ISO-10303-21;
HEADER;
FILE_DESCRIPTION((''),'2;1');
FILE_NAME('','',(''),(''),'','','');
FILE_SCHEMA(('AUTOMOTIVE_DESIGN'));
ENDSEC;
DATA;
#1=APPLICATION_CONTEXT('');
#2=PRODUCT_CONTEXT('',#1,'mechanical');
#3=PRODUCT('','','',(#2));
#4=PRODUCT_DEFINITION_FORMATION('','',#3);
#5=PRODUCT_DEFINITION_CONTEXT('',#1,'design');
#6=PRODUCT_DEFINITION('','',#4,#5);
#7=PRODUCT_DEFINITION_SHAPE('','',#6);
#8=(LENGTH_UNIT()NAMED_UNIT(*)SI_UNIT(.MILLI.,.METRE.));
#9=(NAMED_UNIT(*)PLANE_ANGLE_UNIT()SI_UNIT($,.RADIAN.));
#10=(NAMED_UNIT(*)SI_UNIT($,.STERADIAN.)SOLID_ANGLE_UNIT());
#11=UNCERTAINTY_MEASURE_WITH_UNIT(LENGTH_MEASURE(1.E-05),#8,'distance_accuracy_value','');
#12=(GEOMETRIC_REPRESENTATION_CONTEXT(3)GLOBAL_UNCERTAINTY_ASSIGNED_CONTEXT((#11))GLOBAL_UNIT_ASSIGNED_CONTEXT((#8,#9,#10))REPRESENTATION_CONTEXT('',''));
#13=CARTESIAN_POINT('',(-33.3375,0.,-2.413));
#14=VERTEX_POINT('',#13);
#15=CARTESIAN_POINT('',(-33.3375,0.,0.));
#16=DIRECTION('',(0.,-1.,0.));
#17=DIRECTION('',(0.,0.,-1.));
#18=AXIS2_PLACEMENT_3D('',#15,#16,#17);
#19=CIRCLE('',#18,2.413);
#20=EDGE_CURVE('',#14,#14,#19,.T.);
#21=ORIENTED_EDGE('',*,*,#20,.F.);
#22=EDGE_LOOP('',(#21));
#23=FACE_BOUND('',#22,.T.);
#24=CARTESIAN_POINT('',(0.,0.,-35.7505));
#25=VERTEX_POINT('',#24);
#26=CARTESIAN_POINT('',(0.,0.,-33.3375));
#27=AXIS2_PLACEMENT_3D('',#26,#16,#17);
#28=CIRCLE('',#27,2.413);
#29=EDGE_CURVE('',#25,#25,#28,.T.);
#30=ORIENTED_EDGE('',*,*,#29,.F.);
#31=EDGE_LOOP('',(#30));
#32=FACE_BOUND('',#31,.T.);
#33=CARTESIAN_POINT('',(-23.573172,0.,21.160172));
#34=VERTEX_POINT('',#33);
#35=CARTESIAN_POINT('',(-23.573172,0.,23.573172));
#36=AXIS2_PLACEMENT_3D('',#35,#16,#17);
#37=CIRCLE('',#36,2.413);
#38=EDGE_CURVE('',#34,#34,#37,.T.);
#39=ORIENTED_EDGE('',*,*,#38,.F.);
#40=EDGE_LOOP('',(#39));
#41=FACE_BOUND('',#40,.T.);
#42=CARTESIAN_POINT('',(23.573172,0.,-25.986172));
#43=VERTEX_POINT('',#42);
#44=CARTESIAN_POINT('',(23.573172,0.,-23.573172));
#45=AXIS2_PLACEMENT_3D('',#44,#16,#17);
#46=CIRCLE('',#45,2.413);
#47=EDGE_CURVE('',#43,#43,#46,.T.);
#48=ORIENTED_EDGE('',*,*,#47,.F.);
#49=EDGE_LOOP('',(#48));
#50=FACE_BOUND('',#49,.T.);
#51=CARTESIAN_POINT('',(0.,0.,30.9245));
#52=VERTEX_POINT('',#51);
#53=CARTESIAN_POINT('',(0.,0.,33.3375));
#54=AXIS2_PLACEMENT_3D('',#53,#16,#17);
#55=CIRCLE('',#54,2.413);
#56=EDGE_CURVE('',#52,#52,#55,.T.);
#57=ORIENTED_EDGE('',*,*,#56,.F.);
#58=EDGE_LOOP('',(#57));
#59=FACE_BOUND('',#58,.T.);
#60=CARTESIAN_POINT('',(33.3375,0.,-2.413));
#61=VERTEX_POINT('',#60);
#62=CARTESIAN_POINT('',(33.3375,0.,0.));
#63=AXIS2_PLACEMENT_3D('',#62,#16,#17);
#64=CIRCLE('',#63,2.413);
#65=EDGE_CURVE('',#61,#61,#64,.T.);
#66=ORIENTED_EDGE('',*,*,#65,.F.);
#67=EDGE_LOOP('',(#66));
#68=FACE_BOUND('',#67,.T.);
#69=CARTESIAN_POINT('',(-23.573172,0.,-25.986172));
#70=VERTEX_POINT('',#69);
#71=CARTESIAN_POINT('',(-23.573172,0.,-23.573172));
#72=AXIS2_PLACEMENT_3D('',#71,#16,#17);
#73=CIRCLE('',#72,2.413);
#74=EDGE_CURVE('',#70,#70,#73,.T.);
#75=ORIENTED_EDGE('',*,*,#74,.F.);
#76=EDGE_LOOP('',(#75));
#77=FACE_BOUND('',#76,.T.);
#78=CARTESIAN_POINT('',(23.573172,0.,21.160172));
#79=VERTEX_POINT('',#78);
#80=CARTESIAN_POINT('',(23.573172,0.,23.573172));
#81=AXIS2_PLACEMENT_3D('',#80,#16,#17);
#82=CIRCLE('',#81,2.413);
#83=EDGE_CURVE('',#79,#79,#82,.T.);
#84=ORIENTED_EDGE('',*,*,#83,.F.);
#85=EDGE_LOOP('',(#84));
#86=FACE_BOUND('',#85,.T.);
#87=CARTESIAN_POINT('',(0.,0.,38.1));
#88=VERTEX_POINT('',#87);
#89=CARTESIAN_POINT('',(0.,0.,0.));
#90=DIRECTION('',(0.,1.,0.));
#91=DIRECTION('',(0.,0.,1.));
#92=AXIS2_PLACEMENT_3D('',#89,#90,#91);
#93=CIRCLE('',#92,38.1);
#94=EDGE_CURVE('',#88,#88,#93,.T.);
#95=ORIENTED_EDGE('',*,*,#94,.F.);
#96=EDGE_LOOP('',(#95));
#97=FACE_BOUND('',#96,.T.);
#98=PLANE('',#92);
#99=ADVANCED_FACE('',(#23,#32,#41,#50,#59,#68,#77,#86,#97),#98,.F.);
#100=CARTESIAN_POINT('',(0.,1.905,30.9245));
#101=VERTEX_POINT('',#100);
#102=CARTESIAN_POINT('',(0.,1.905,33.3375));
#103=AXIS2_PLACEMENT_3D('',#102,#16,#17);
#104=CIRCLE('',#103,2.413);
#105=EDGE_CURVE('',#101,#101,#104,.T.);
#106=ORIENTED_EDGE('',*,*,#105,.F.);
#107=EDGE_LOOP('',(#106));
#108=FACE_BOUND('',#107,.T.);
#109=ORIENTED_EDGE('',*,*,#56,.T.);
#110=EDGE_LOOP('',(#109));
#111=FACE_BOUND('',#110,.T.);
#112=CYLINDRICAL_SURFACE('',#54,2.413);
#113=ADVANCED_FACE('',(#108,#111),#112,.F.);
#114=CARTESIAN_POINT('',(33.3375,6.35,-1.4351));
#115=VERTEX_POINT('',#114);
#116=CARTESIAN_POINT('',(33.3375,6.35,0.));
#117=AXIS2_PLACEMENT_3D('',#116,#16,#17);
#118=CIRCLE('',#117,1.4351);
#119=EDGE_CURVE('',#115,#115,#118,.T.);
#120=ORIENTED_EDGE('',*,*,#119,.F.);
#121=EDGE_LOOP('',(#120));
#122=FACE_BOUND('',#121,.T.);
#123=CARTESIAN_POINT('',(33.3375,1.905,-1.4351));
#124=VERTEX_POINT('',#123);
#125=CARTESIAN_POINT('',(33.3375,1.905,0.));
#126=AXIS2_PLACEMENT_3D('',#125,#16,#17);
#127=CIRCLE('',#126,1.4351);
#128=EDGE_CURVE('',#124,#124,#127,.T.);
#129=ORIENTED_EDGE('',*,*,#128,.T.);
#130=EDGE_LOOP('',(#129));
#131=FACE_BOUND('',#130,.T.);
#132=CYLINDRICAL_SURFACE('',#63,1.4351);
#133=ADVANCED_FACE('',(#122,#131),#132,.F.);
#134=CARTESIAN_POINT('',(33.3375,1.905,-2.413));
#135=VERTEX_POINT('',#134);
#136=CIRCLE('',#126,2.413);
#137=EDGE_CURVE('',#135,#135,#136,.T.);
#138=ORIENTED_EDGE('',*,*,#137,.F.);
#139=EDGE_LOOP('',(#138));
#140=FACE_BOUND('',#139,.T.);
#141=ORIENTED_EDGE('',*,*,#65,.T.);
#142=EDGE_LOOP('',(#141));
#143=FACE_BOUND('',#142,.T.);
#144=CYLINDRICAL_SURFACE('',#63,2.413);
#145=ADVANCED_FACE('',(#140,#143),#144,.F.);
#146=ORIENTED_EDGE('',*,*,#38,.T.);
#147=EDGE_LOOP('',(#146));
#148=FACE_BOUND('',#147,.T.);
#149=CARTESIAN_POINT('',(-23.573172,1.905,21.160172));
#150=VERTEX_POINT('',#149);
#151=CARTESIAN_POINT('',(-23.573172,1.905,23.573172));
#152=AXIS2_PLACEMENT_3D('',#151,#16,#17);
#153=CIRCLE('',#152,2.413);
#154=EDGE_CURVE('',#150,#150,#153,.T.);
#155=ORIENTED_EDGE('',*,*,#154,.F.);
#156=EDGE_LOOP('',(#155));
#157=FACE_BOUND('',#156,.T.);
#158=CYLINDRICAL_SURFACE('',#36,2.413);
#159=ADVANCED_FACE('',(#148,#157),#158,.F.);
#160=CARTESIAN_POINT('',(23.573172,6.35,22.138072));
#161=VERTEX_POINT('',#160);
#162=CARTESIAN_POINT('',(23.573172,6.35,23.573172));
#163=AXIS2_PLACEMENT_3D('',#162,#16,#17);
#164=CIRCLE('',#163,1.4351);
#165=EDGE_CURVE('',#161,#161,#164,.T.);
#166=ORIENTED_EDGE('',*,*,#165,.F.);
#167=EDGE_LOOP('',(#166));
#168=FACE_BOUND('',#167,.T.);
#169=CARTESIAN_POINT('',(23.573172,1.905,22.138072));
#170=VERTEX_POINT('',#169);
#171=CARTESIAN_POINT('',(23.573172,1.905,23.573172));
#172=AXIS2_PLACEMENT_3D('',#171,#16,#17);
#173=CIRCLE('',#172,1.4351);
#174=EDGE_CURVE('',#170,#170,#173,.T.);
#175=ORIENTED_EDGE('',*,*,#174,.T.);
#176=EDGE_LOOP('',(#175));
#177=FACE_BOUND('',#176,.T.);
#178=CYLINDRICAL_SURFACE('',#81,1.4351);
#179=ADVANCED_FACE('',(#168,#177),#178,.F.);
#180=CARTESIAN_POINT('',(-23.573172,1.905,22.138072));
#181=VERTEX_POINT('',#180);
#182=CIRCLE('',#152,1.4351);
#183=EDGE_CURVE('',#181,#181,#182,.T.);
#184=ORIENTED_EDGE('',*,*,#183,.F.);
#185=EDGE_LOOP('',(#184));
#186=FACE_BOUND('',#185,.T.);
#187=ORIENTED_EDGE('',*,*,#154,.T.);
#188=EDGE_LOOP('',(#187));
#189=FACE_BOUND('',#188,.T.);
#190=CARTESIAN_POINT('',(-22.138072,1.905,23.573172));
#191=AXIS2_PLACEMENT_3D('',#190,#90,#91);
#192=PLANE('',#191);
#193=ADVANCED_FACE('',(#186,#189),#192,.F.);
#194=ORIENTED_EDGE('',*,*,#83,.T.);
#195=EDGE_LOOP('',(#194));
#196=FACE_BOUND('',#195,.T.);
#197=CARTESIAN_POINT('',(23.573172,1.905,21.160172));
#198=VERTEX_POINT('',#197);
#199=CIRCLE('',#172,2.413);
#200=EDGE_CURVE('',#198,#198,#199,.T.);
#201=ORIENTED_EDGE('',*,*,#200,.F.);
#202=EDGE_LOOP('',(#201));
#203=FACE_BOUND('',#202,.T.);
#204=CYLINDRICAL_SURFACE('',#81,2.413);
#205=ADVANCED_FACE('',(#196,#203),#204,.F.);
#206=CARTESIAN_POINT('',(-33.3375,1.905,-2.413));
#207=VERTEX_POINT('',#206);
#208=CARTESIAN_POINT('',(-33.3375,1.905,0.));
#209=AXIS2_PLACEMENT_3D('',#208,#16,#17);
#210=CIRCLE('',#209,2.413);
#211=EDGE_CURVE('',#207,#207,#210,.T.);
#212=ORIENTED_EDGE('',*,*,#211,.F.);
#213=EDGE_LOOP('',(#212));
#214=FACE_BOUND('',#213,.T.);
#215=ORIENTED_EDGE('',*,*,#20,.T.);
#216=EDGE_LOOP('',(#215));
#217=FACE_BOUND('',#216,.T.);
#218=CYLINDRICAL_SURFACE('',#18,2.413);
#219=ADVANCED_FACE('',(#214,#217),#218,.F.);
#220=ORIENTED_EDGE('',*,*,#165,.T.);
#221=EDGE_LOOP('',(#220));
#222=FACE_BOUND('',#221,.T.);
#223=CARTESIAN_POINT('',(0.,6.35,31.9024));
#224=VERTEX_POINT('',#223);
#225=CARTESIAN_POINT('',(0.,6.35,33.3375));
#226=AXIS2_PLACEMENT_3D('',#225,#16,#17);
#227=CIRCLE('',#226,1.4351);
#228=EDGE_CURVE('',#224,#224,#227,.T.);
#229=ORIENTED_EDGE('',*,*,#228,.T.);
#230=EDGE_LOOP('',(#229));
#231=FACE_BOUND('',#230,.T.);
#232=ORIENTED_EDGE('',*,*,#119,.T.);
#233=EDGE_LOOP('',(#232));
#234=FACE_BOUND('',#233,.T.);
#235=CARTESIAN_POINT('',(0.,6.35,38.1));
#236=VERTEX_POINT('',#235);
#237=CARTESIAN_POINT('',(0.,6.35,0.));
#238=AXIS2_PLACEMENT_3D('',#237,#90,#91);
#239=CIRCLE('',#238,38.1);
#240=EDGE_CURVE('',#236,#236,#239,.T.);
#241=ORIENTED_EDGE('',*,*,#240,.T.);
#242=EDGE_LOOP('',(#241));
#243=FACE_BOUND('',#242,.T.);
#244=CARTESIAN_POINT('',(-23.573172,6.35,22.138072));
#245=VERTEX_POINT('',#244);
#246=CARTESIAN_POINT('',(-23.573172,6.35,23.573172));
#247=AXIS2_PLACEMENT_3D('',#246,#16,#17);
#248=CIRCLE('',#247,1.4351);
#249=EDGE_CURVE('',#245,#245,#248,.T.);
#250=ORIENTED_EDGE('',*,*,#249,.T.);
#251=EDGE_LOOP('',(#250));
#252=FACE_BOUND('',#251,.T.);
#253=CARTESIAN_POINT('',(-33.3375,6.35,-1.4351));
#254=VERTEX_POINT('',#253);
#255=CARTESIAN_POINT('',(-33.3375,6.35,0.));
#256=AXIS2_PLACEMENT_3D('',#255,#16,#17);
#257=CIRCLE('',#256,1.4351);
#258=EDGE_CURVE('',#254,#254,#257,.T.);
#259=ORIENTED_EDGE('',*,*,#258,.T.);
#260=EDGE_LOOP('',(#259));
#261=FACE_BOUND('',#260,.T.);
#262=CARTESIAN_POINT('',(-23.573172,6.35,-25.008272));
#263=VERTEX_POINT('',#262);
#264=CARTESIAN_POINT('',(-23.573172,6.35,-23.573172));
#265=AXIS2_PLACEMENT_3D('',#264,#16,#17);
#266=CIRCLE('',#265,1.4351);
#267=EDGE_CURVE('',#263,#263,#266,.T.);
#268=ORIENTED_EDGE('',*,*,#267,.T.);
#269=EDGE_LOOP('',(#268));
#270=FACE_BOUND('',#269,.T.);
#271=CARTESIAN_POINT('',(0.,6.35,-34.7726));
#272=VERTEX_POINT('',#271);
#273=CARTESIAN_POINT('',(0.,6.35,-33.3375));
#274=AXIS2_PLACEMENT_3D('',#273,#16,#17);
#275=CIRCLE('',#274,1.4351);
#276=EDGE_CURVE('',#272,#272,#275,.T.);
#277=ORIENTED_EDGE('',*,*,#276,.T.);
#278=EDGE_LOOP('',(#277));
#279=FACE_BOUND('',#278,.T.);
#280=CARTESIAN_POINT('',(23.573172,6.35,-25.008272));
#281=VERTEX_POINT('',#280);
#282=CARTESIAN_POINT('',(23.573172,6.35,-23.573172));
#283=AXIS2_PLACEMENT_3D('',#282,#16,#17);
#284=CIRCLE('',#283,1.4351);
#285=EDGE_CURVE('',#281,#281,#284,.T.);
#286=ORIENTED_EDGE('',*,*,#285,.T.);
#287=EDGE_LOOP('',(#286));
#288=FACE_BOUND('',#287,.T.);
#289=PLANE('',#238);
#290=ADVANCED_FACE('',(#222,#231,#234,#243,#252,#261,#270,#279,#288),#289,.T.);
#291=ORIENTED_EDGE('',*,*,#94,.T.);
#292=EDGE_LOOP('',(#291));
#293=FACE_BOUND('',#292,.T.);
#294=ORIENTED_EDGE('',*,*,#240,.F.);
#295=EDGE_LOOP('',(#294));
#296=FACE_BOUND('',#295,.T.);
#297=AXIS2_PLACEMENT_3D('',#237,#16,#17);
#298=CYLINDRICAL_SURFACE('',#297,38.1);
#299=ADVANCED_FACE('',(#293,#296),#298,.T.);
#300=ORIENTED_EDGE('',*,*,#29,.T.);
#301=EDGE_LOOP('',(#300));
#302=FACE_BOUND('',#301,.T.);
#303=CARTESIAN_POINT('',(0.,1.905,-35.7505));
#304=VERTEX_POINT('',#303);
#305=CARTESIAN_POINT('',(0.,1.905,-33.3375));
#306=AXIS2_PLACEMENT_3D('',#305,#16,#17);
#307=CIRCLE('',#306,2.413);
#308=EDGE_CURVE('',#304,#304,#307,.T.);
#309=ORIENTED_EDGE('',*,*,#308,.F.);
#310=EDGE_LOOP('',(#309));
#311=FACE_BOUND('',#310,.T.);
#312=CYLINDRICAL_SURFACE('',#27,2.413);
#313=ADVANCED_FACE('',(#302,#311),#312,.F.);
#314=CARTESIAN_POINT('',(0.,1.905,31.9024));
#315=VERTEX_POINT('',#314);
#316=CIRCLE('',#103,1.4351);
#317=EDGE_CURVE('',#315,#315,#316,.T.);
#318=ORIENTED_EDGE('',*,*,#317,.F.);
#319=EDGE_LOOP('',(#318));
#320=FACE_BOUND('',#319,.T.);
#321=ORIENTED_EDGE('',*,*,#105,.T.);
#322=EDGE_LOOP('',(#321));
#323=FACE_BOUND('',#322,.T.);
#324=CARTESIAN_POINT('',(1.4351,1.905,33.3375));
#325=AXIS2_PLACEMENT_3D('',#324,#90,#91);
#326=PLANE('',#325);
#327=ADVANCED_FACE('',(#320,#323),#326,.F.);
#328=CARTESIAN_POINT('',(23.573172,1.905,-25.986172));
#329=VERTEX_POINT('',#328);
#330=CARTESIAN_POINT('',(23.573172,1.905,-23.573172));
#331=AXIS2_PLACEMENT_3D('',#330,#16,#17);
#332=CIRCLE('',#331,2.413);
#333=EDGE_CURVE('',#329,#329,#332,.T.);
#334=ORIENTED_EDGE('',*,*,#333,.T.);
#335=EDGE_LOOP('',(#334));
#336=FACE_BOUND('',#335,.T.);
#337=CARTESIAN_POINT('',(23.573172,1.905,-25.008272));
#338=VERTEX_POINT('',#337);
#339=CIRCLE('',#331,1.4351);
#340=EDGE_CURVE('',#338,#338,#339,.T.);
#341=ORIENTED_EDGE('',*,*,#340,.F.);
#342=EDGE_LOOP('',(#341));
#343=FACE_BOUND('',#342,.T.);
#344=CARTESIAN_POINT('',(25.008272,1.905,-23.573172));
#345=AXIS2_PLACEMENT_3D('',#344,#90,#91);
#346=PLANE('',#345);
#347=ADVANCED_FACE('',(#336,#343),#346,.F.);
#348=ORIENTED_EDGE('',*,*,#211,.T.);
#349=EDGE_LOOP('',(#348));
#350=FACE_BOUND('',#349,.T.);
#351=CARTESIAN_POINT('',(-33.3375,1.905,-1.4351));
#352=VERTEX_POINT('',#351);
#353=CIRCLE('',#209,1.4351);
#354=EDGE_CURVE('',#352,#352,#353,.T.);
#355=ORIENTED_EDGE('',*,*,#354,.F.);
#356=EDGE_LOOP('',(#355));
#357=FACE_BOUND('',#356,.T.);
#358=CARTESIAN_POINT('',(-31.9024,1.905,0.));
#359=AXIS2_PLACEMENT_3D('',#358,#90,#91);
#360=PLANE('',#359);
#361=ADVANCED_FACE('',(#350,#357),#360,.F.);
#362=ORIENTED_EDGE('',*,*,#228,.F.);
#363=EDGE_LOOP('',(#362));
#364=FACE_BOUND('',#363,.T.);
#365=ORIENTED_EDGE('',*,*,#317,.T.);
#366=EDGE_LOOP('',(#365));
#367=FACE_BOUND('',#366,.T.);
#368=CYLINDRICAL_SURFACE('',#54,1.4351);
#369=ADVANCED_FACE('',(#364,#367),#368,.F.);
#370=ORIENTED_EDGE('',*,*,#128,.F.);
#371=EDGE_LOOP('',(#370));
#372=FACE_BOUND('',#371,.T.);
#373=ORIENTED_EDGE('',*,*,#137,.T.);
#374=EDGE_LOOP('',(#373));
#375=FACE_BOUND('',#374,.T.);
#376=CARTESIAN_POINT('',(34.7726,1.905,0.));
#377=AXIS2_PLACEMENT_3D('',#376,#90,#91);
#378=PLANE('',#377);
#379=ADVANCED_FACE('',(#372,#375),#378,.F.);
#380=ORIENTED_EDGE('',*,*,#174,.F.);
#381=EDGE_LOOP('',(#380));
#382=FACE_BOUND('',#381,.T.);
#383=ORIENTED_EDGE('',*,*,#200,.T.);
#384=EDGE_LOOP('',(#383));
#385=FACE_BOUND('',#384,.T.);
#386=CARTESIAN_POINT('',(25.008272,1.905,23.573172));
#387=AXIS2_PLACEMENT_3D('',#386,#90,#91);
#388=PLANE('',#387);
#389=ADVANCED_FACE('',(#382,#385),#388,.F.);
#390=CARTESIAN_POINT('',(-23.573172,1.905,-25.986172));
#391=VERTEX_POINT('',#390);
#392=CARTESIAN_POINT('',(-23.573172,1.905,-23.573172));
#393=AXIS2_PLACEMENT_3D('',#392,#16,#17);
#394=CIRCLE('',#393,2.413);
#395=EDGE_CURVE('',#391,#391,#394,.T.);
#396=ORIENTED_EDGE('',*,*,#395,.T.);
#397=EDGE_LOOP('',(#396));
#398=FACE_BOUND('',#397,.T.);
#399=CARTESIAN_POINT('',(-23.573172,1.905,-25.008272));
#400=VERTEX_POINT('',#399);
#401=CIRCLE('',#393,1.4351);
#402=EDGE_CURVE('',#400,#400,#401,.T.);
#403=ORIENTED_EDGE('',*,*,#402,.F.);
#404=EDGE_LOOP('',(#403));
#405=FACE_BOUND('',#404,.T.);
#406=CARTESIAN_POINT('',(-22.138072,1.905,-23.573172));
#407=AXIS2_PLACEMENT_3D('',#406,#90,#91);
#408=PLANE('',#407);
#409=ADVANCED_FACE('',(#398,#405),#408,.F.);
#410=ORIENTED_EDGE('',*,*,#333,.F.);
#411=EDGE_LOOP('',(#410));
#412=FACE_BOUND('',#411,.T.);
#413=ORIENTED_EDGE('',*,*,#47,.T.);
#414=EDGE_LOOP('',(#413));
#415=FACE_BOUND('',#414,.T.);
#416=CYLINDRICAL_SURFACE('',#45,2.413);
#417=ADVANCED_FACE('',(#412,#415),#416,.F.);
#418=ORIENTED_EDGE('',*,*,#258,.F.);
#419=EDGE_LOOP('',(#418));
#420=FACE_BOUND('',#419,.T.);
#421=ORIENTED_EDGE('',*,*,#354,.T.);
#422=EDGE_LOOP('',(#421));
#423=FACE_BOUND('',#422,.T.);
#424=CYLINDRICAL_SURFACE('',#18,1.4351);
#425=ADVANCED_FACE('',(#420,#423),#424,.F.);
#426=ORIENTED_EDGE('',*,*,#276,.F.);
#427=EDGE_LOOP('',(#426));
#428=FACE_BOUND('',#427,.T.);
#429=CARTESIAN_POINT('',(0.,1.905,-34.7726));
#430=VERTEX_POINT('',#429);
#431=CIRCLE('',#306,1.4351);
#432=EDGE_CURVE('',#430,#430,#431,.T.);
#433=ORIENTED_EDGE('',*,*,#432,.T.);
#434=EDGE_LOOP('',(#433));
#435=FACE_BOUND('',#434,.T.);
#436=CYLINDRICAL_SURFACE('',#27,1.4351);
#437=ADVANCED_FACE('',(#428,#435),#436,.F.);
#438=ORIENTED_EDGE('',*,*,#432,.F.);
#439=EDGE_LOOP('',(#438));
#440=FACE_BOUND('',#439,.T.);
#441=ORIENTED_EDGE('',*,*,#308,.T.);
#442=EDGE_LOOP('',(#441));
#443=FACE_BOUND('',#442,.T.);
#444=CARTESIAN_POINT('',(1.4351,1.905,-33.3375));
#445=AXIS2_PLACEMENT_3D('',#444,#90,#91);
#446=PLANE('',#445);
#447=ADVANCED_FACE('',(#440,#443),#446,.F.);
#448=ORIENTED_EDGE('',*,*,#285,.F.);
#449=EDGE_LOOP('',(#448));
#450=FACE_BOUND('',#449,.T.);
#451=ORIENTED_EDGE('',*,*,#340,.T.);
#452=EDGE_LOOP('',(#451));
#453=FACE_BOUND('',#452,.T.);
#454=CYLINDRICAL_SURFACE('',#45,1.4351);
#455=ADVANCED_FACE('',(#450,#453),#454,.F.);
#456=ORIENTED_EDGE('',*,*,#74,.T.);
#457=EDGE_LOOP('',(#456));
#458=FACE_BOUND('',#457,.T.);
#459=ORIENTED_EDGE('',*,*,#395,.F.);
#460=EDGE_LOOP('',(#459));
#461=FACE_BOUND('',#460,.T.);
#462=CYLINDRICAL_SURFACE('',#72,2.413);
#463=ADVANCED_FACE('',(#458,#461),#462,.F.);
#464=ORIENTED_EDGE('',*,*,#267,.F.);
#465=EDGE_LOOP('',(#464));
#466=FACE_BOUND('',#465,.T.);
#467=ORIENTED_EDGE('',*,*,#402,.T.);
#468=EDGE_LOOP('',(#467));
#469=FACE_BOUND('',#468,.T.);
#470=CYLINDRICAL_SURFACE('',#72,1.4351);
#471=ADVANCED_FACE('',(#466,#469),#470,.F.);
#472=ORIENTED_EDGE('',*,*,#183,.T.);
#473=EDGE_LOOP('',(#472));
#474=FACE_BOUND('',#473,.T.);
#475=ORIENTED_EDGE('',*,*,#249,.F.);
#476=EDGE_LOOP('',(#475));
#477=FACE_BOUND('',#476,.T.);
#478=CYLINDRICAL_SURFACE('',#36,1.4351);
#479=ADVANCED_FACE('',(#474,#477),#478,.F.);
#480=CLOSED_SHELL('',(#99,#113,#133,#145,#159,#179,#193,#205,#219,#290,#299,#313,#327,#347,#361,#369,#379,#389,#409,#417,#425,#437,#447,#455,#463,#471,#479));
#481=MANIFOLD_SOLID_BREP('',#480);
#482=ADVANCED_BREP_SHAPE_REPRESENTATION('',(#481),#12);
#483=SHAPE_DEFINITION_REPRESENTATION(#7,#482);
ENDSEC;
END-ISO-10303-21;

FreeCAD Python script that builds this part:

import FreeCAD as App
import Part
import Sketcher

V = App.Vector
Q = App.Units.Quantity

doc = App.newDocument("Part")
body = doc.addObject("PartDesign::Body", "Body")

# Sketch on XZ plane
sketch1 = body.newObject("Sketcher::SketchObject", "Sketch")
sketch1.AttachmentSupport = (doc.getObject("XZ_Plane"), [""])
sketch1.MapMode = "FlatFace"
sketch1.addGeometry(Part.Circle(V(0, 0, 0), V(0, 0, 1), 38.1), False)
sketch1.addConstraint(Sketcher.Constraint("Coincident", 0, 3, -1, 1))
sketch1.addConstraint(Sketcher.Constraint("Diameter", 0, Q("3 in")))
pad1 = body.newObject("PartDesign::Pad", "Pad")
pad1.Profile = sketch1
pad1.Length = Q("0.25 in")
pad1.Reversed = True

# Sketch on XZ plane
sketch2 = body.newObject("Sketcher::SketchObject", "Sketch001")
sketch2.AttachmentSupport = (doc.getObject("XZ_Plane"), [""])
sketch2.MapMode = "FlatFace"
sketch2.addGeometry(Part.Circle(V(0, 33.3375, 0), V(0, 0, 1), 1.4351), False)
sketch2.addConstraint(Sketcher.Constraint("PointOnObject", 0, 3, -2))
sketch2.addConstraint(Sketcher.Constraint("Diameter", 0, Q("0.113 in")))
sketch2.addConstraint(Sketcher.Constraint("DistanceY", -1, 1, 0, 3, Q("1.3125 in")))
doc.recompute()
hole = body.newObject("PartDesign::Hole", "Hole")
hole.Profile = sketch2
hole.ThreadType = "None"
hole.Diameter = Q("0.113 in")
hole.DepthType = "ThroughAll"
hole.HoleCutType = "Counterbore"
hole.HoleCutDiameter = Q("0.19 in")
hole.HoleCutDepth = Q("0.075 in")
doc.recompute()

polarpattern = body.newObject("PartDesign::PolarPattern", "PolarPattern")
polarpattern.Originals = [hole]
polarpattern.Axis = (doc.getObject("Y_Axis"), [""])
polarpattern.Angle = 360
polarpattern.Occurrences = 8
body.Tip = polarpattern

doc.recompute()
